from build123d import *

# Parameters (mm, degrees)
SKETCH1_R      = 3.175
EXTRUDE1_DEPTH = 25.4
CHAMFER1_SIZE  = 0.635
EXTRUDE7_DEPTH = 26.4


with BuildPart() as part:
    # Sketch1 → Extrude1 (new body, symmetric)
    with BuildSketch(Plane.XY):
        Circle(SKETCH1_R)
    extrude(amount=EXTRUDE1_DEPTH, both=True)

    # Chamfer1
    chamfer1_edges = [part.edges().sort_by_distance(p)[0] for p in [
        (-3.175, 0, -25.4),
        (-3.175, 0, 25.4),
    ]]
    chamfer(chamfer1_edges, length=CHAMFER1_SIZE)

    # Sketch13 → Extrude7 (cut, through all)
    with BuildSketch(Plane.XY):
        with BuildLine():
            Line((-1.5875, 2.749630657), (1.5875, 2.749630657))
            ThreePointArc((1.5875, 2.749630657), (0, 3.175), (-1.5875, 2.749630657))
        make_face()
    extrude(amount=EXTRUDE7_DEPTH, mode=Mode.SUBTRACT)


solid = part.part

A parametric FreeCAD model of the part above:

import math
import FreeCAD as App
import Part
import Sketcher

V = App.Vector
Q = App.Units.Quantity


def edges_at(feature, points):
    """Names of the edges that pass closest to the given points."""
    edges = feature.Shape.Edges
    near = lambda p: min(range(len(edges)), key=lambda i: edges[i].distToShape(Part.Vertex(*p))[0])
    return sorted({f"Edge{near(p) + 1}" for p in points})

doc = App.newDocument("Part")
body = doc.addObject("PartDesign::Body", "Body")

# Sketch on XY plane
sketch1 = body.newObject("Sketcher::SketchObject", "Sketch")
sketch1.AttachmentSupport = (doc.getObject("XY_Plane"), [""])
sketch1.MapMode = "FlatFace"
sketch1.addGeometry(Part.Circle(V(0, 0, 0), V(0, 0, 1), 3.2), False)
sketch1.addConstraint([
    Sketcher.Constraint("Coincident", 0, 3, -1, 1),
    Sketcher.Constraint("Diameter", 0, Q("0.25 in")),
])
pad1 = body.newObject("PartDesign::Pad", "Pad")
pad1.Profile = sketch1
pad1.Length = Q("2 in")
pad1.Midplane = True
doc.recompute()

chamfer = body.newObject("PartDesign::Chamfer", "Chamfer")
chamfer.Base = (pad1, edges_at(pad1, [(-3.175, 0, -25.4), (-3.175, 0, 25.4)]))
chamfer.Size = Q("0.025 in")

# Sketch on XY plane
sketch2 = body.newObject("Sketcher::SketchObject", "Sketch001")
sketch2.AttachmentSupport = (doc.getObject("XY_Plane"), [""])
sketch2.MapMode = "FlatFace"
sketch2.addGeometry([
    Part.LineSegment(V(-1.6, 2.7, 0), V(1.6, 2.7, 0)),
    Part.ArcOfCircle(Part.Circle(V(0, 0, 0), V(0, 0, 1), 3.2), math.radians(60), math.radians(120)),
], False)
sketch2.addConstraint([
    Sketcher.Constraint("Coincident", 0, 1, 1, 2),
    Sketcher.Constraint("Coincident", 1, 1, 0, 2),
    Sketcher.Constraint("Horizontal", 0),
    Sketcher.Constraint("Coincident", 1, 3, -1, 1),
    Sketcher.Constraint("Radius", 1, Q("0.125 in")),
    Sketcher.Constraint("DistanceX", 0, 1, 0, 2, Q("0.125 in")),
])
pocket1 = body.newObject("PartDesign::Pocket", "Pocket")
pocket1.Profile = sketch2
pocket1.Type = "ThroughAll"
pocket1.Reversed = True

doc.recompute()
